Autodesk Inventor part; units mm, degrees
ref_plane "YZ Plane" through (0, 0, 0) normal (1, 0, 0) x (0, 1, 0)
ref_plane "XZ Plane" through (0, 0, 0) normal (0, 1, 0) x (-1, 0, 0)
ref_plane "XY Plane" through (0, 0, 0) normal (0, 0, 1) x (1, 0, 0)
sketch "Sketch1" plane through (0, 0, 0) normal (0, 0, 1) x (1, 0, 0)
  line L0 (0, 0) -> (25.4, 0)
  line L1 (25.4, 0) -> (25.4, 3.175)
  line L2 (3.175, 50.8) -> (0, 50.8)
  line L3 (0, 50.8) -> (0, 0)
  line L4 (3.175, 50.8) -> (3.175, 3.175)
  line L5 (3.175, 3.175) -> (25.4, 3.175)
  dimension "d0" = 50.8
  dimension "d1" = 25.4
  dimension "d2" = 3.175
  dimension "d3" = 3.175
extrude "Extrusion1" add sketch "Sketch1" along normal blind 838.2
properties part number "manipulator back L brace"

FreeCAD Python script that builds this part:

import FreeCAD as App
import Part
import Sketcher
from FreeCAD import Vector
Q = App.Units.Quantity

doc = App.newDocument("Part")
body = doc.addObject("PartDesign::Body", "Body")

sketch1 = body.newObject("Sketcher::SketchObject", "Sketch")
sketch1.AttachmentSupport = (doc.getObject("XY_Plane"), [""])
sketch1.MapMode = "FlatFace"
sketch1.addGeometry([
    Part.LineSegment(Vector(0, 50.8, 0), Vector(0, 0, 0)),
    Part.LineSegment(Vector(0, 0, 0), Vector(25.4, 0, 0)),
    Part.LineSegment(Vector(25.4, 0, 0), Vector(25.4, 3.2, 0)),
    Part.LineSegment(Vector(25.4, 3.2, 0), Vector(3.2, 3.2, 0)),
    Part.LineSegment(Vector(3.2, 3.2, 0), Vector(3.2, 50.8, 0)),
    Part.LineSegment(Vector(3.2, 50.8, 0), Vector(0, 50.8, 0)),
], False)
sketch1.addConstraint([
    Sketcher.Constraint("Coincident", 0, 2, 1, 1),
    Sketcher.Constraint("Coincident", 1, 2, 2, 1),
    Sketcher.Constraint("Coincident", 2, 2, 3, 1),
    Sketcher.Constraint("Coincident", 3, 2, 4, 1),
    Sketcher.Constraint("Coincident", 4, 2, 5, 1),
    Sketcher.Constraint("Coincident", 5, 2, 0, 1),
    Sketcher.Constraint("Vertical", 0),
    Sketcher.Constraint("Horizontal", 1),
    Sketcher.Constraint("Vertical", 2),
    Sketcher.Constraint("Horizontal", 3),
    Sketcher.Constraint("Vertical", 4),
    Sketcher.Constraint("Horizontal", 5),
    Sketcher.Constraint("Coincident", 0, 2, -1, 1),
    Sketcher.Constraint("Equal", 5, 2),
    Sketcher.Constraint("DistanceX", 1, 1, 1, 2, Q("1 in")),
    Sketcher.Constraint("DistanceY", 0, 2, 0, 1, Q("2 in")),
    Sketcher.Constraint("DistanceX", 5, 2, 5, 1, Q("0.125 in")),
])
pad1 = body.newObject("PartDesign::Pad", "Pad")
pad1.Profile = sketch1
pad1.Length = Q("33 in")

doc.recompute()
